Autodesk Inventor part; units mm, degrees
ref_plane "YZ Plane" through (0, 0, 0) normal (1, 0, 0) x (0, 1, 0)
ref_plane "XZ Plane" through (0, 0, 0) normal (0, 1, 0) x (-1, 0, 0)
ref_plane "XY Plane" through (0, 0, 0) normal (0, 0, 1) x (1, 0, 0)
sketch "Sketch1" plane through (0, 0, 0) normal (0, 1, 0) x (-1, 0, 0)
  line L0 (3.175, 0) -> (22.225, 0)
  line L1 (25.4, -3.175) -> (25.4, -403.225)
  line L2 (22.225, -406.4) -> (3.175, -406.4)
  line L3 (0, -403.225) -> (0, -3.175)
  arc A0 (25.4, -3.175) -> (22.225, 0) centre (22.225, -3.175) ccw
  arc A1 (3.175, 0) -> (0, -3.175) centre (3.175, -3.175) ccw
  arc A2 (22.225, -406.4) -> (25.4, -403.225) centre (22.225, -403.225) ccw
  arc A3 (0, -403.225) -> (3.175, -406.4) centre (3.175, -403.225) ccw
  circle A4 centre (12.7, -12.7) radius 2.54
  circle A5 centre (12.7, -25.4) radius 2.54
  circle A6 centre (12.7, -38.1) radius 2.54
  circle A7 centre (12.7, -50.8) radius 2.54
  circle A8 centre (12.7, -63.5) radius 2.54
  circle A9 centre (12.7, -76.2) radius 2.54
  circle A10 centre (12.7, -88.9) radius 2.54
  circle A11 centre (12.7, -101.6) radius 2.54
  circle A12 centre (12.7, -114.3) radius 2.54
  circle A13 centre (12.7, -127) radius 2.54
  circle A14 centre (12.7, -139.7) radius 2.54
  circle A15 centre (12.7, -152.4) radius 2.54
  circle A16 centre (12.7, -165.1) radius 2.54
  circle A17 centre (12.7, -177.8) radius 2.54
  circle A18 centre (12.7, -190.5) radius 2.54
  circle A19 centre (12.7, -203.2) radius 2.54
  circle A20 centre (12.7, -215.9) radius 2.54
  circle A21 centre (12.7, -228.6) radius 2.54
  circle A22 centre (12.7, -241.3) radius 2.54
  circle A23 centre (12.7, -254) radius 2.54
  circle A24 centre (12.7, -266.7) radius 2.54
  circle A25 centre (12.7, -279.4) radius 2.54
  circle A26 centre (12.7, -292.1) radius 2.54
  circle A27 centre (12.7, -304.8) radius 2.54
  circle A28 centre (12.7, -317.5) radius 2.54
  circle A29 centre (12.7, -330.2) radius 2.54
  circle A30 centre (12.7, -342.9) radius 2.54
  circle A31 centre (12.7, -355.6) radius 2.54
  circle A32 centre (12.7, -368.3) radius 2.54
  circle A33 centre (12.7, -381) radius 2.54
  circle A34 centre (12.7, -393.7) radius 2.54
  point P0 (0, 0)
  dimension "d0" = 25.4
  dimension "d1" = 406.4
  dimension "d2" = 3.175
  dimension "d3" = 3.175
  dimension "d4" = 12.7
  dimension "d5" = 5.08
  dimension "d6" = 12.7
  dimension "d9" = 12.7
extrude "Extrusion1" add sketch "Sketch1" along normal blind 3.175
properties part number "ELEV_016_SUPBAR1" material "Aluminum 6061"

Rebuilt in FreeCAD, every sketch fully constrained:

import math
import FreeCAD as App
import Part
import Sketcher
Q = App.Units.Quantity

doc = App.newDocument("Part")
body = doc.addObject("PartDesign::Body", "Body")

# Sketch on XZ plane
sketch1 = body.newObject("Sketcher::SketchObject", "Sketch")
sketch1.AttachmentSupport = (doc.getObject("XZ_Plane"), [""])
sketch1.MapMode = "FlatFace"
sketch1.addGeometry(Part.LineSegment(App.Vector(-22.2, 0, 0), App.Vector(-3.2, 0, 0)), False)
sketch1.addGeometry(Part.ArcOfCircle(Part.Circle(App.Vector(-3.2, -3.2, 0), App.Vector(0, 0, 1), 3.2), math.radians(0), math.radians(90)), False)
sketch1.addGeometry(Part.LineSegment(App.Vector(0, -3.2, 0), App.Vector(0, -403.2, 0)), False)
sketch1.addGeometry(Part.ArcOfCircle(Part.Circle(App.Vector(-3.2, -403.2, 0), App.Vector(0, 0, 1), 3.2), math.radians(-90), math.radians(0)), False)
sketch1.addGeometry(Part.LineSegment(App.Vector(-3.2, -406.4, 0), App.Vector(-22.2, -406.4, 0)), False)
sketch1.addGeometry(Part.ArcOfCircle(Part.Circle(App.Vector(-22.2, -403.2, 0), App.Vector(0, 0, 1), 3.2), math.radians(180), math.radians(270)), False)
sketch1.addGeometry(Part.LineSegment(App.Vector(-25.4, -403.2, 0), App.Vector(-25.4, -3.2, 0)), False)
sketch1.addGeometry(Part.ArcOfCircle(Part.Circle(App.Vector(-22.2, -3.2, 0), App.Vector(0, 0, 1), 3.2), math.radians(90), math.radians(180)), False)
sketch1.addGeometry(Part.Circle(App.Vector(-12.7, -393.7, 0), App.Vector(0, 0, 1), 2.5), False)
sketch1.addGeometry(Part.Circle(App.Vector(-12.7, -381, 0), App.Vector(0, 0, 1), 2.5), False)
sketch1.addGeometry(Part.Circle(App.Vector(-12.7, -368.3, 0), App.Vector(0, 0, 1), 2.5), False)
sketch1.addGeometry(Part.Circle(App.Vector(-12.7, -355.6, 0), App.Vector(0, 0, 1), 2.5), False)
sketch1.addGeometry(Part.Circle(App.Vector(-12.7, -342.9, 0), App.Vector(0, 0, 1), 2.5), False)
sketch1.addGeometry(Part.Circle(App.Vector(-12.7, -330.2, 0), App.Vector(0, 0, 1), 2.5), False)
sketch1.addGeometry(Part.Circle(App.Vector(-12.7, -317.5, 0), App.Vector(0, 0, 1), 2.5), False)
sketch1.addGeometry(Part.Circle(App.Vector(-12.7, -304.8, 0), App.Vector(0, 0, 1), 2.5), False)
sketch1.addGeometry(Part.Circle(App.Vector(-12.7, -292.1, 0), App.Vector(0, 0, 1), 2.5), False)
sketch1.addGeometry(Part.Circle(App.Vector(-12.7, -279.4, 0), App.Vector(0, 0, 1), 2.5), False)
sketch1.addGeometry(Part.Circle(App.Vector(-12.7, -266.7, 0), App.Vector(0, 0, 1), 2.5), False)
sketch1.addGeometry(Part.Circle(App.Vector(-12.7, -254, 0), App.Vector(0, 0, 1), 2.5), False)
sketch1.addGeometry(Part.Circle(App.Vector(-12.7, -241.3, 0), App.Vector(0, 0, 1), 2.5), False)
sketch1.addGeometry(Part.Circle(App.Vector(-12.7, -228.6, 0), App.Vector(0, 0, 1), 2.5), False)
sketch1.addGeometry(Part.Circle(App.Vector(-12.7, -215.9, 0), App.Vector(0, 0, 1), 2.5), False)
sketch1.addGeometry(Part.Circle(App.Vector(-12.7, -203.2, 0), App.Vector(0, 0, 1), 2.5), False)
sketch1.addGeometry(Part.Circle(App.Vector(-12.7, -190.5, 0), App.Vector(0, 0, 1), 2.5), False)
sketch1.addGeometry(Part.Circle(App.Vector(-12.7, -177.8, 0), App.Vector(0, 0, 1), 2.5), False)
sketch1.addGeometry(Part.Circle(App.Vector(-12.7, -165.1, 0), App.Vector(0, 0, 1), 2.5), False)
sketch1.addGeometry(Part.Circle(App.Vector(-12.7, -152.4, 0), App.Vector(0, 0, 1), 2.5), False)
sketch1.addGeometry(Part.Circle(App.Vector(-12.7, -139.7, 0), App.Vector(0, 0, 1), 2.5), False)
sketch1.addGeometry(Part.Circle(App.Vector(-12.7, -127, 0), App.Vector(0, 0, 1), 2.5), False)
sketch1.addGeometry(Part.Circle(App.Vector(-12.7, -114.3, 0), App.Vector(0, 0, 1), 2.5), False)
sketch1.addGeometry(Part.Circle(App.Vector(-12.7, -101.6, 0), App.Vector(0, 0, 1), 2.5), False)
sketch1.addGeometry(Part.Circle(App.Vector(-12.7, -88.9, 0), App.Vector(0, 0, 1), 2.5), False)
sketch1.addGeometry(Part.Circle(App.Vector(-12.7, -76.2, 0), App.Vector(0, 0, 1), 2.5), False)
sketch1.addGeometry(Part.Circle(App.Vector(-12.7, -63.5, 0), App.Vector(0, 0, 1), 2.5), False)
sketch1.addGeometry(Part.Circle(App.Vector(-12.7, -50.8, 0), App.Vector(0, 0, 1), 2.5), False)
sketch1.addGeometry(Part.Circle(App.Vector(-12.7, -38.1, 0), App.Vector(0, 0, 1), 2.5), False)
sketch1.addGeometry(Part.Circle(App.Vector(-12.7, -25.4, 0), App.Vector(0, 0, 1), 2.5), False)
sketch1.addGeometry(Part.Circle(App.Vector(-12.7, -12.7, 0), App.Vector(0, 0, 1), 2.5), False)
sketch1.addConstraint(Sketcher.Constraint("Tangent", 0, 2, 1, 2))
sketch1.addConstraint(Sketcher.Constraint("Tangent", 1, 1, 2, 1))
sketch1.addConstraint(Sketcher.Constraint("Tangent", 2, 2, 3, 2))
sketch1.addConstraint(Sketcher.Constraint("Tangent", 3, 1, 4, 1))
sketch1.addConstraint(Sketcher.Constraint("Tangent", 4, 2, 5, 2))
sketch1.addConstraint(Sketcher.Constraint("Tangent", 5, 1, 6, 1))
sketch1.addConstraint(Sketcher.Constraint("Tangent", 6, 2, 7, 2))
sketch1.addConstraint(Sketcher.Constraint("Tangent", 7, 1, 0, 1))
sketch1.addConstraint(Sketcher.Constraint("Horizontal", 0))
sketch1.addConstraint(Sketcher.Constraint("Vertical", 2))
sketch1.addConstraint(Sketcher.Constraint("Horizontal", 4))
sketch1.addConstraint(Sketcher.Constraint("Vertical", 6))
sketch1.addConstraint(Sketcher.Constraint("Equal", 1, 3))
sketch1.addConstraint(Sketcher.Constraint("Equal", 3, 5))
sketch1.addConstraint(Sketcher.Constraint("Equal", 5, 7))
sketch1.addConstraint(Sketcher.Constraint("Equal", 8, 9))
sketch1.addConstraint(Sketcher.Constraint("Equal", 9, 10))
sketch1.addConstraint(Sketcher.Constraint("Equal", 10, 11))
sketch1.addConstraint(Sketcher.Constraint("Equal", 11, 12))
sketch1.addConstraint(Sketcher.Constraint("Equal", 12, 13))
sketch1.addConstraint(Sketcher.Constraint("Equal", 13, 14))
sketch1.addConstraint(Sketcher.Constraint("Equal", 14, 15))
sketch1.addConstraint(Sketcher.Constraint("Equal", 15, 16))
sketch1.addConstraint(Sketcher.Constraint("Equal", 16, 17))
sketch1.addConstraint(Sketcher.Constraint("Equal", 17, 18))
sketch1.addConstraint(Sketcher.Constraint("Equal", 18, 19))
sketch1.addConstraint(Sketcher.Constraint("Equal", 19, 20))
sketch1.addConstraint(Sketcher.Constraint("Equal", 20, 21))
sketch1.addConstraint(Sketcher.Constraint("Equal", 21, 22))
sketch1.addConstraint(Sketcher.Constraint("Equal", 22, 23))
sketch1.addConstraint(Sketcher.Constraint("Equal", 23, 24))
sketch1.addConstraint(Sketcher.Constraint("Equal", 24, 25))
sketch1.addConstraint(Sketcher.Constraint("Equal", 25, 26))
sketch1.addConstraint(Sketcher.Constraint("Equal", 26, 27))
sketch1.addConstraint(Sketcher.Constraint("Equal", 27, 28))
sketch1.addConstraint(Sketcher.Constraint("Equal", 28, 29))
sketch1.addConstraint(Sketcher.Constraint("Equal", 29, 30))
sketch1.addConstraint(Sketcher.Constraint("Equal", 30, 31))
sketch1.addConstraint(Sketcher.Constraint("Equal", 31, 32))
sketch1.addConstraint(Sketcher.Constraint("Equal", 32, 33))
sketch1.addConstraint(Sketcher.Constraint("Equal", 33, 34))
sketch1.addConstraint(Sketcher.Constraint("Equal", 34, 35))
sketch1.addConstraint(Sketcher.Constraint("Equal", 35, 36))
sketch1.addConstraint(Sketcher.Constraint("Equal", 36, 37))
sketch1.addConstraint(Sketcher.Constraint("Equal", 37, 38))
sketch1.addConstraint(Sketcher.Constraint("PointOnObject", 0, 2, -1))
sketch1.addConstraint(Sketcher.Constraint("PointOnObject", 1, 1, -2))
sketch1.addConstraint(Sketcher.Constraint("Vertical", 8, 3, 9, 3))
sketch1.addConstraint(Sketcher.Constraint("Vertical", 9, 3, 10, 3))
sketch1.addConstraint(Sketcher.Constraint("Vertical", 10, 3, 11, 3))
sketch1.addConstraint(Sketcher.Constraint("Vertical", 11, 3, 12, 3))
sketch1.addConstraint(Sketcher.Constraint("Vertical", 12, 3, 13, 3))
sketch1.addConstraint(Sketcher.Constraint("Vertical", 13, 3, 14, 3))
sketch1.addConstraint(Sketcher.Constraint("Vertical", 14, 3, 15, 3))
sketch1.addConstraint(Sketcher.Constraint("Vertical", 15, 3, 16, 3))
sketch1.addConstraint(Sketcher.Constraint("Vertical", 16, 3, 17, 3))
sketch1.addConstraint(Sketcher.Constraint("Vertical", 17, 3, 18, 3))
sketch1.addConstraint(Sketcher.Constraint("Vertical", 18, 3, 19, 3))
sketch1.addConstraint(Sketcher.Constraint("Vertical", 19, 3, 20, 3))
sketch1.addConstraint(Sketcher.Constraint("Vertical", 20, 3, 21, 3))
sketch1.addConstraint(Sketcher.Constraint("Vertical", 21, 3, 22, 3))
sketch1.addConstraint(Sketcher.Constraint("Vertical", 22, 3, 23, 3))
sketch1.addConstraint(Sketcher.Constraint("Vertical", 23, 3, 24, 3))
sketch1.addConstraint(Sketcher.Constraint("Vertical", 24, 3, 25, 3))
sketch1.addConstraint(Sketcher.Constraint("Vertical", 25, 3, 26, 3))
sketch1.addConstraint(Sketcher.Constraint("Vertical", 26, 3, 27, 3))
sketch1.addConstraint(Sketcher.Constraint("Vertical", 27, 3, 28, 3))
sketch1.addConstraint(Sketcher.Constraint("Vertical", 28, 3, 29, 3))
sketch1.addConstraint(Sketcher.Constraint("Vertical", 29, 3, 30, 3))
sketch1.addConstraint(Sketcher.Constraint("Vertical", 30, 3, 31, 3))
sketch1.addConstraint(Sketcher.Constraint("Vertical", 31, 3, 32, 3))
sketch1.addConstraint(Sketcher.Constraint("Vertical", 32, 3, 33, 3))
sketch1.addConstraint(Sketcher.Constraint("Vertical", 33, 3, 34, 3))
sketch1.addConstraint(Sketcher.Constraint("Vertical", 34, 3, 35, 3))
sketch1.addConstraint(Sketcher.Constraint("Vertical", 35, 3, 36, 3))
sketch1.addConstraint(Sketcher.Constraint("Vertical", 36, 3, 37, 3))
sketch1.addConstraint(Sketcher.Constraint("Vertical", 37, 3, 38, 3))
sketch1.addConstraint(Sketcher.Constraint("Diameter", 8, Q("0.2 in")))
sketch1.addConstraint(Sketcher.Constraint("DistanceY", 37, 3, -1, 1, Q("1 in")))
sketch1.addConstraint(Sketcher.Constraint("DistanceY", 3, 1, -1, 1, Q("16 in")))
sketch1.addConstraint(Sketcher.Constraint("DistanceX", 5, 1, -1, 1, Q("1 in")))
sketch1.addConstraint(Sketcher.Constraint("Radius", 1, Q("0.125 in")))
sketch1.addConstraint(Sketcher.Constraint("DistanceY", 8, 3, 10, 3, Q("1 in")))
sketch1.addConstraint(Sketcher.Constraint("DistanceY", 9, 3, 11, 3, Q("1 in")))
sketch1.addConstraint(Sketcher.Constraint("DistanceY", 10, 3, 12, 3, Q("1 in")))
sketch1.addConstraint(Sketcher.Constraint("DistanceY", 11, 3, 13, 3, Q("1 in")))
sketch1.addConstraint(Sketcher.Constraint("DistanceY", 12, 3, 14, 3, Q("1 in")))
sketch1.addConstraint(Sketcher.Constraint("DistanceY", 13, 3, 15, 3, Q("1 in")))
sketch1.addConstraint(Sketcher.Constraint("DistanceY", 14, 3, 16, 3, Q("1 in")))
sketch1.addConstraint(Sketcher.Constraint("DistanceY", 15, 3, 17, 3, Q("1 in")))
sketch1.addConstraint(Sketcher.Constraint("DistanceY", 16, 3, 18, 3, Q("1 in")))
sketch1.addConstraint(Sketcher.Constraint("DistanceY", 17, 3, 19, 3, Q("1 in")))
sketch1.addConstraint(Sketcher.Constraint("DistanceY", 18, 3, 20, 3, Q("1 in")))
sketch1.addConstraint(Sketcher.Constraint("DistanceY", 19, 3, 21, 3, Q("1 in")))
sketch1.addConstraint(Sketcher.Constraint("DistanceY", 20, 3, 22, 3, Q("1 in")))
sketch1.addConstraint(Sketcher.Constraint("DistanceY", 21, 3, 23, 3, Q("1 in")))
sketch1.addConstraint(Sketcher.Constraint("DistanceY", 22, 3, 24, 3, Q("1 in")))
sketch1.addConstraint(Sketcher.Constraint("DistanceY", 23, 3, 25, 3, Q("1 in")))
sketch1.addConstraint(Sketcher.Constraint("DistanceY", 24, 3, 26, 3, Q("1 in")))
sketch1.addConstraint(Sketcher.Constraint("DistanceY", 25, 3, 27, 3, Q("1 in")))
sketch1.addConstraint(Sketcher.Constraint("DistanceY", 26, 3, 28, 3, Q("1 in")))
sketch1.addConstraint(Sketcher.Constraint("DistanceY", 27, 3, 29, 3, Q("1 in")))
sketch1.addConstraint(Sketcher.Constraint("DistanceY", 28, 3, 30, 3, Q("1 in")))
sketch1.addConstraint(Sketcher.Constraint("DistanceY", 29, 3, 31, 3, Q("1 in")))
sketch1.addConstraint(Sketcher.Constraint("DistanceY", 30, 3, 32, 3, Q("1 in")))
sketch1.addConstraint(Sketcher.Constraint("DistanceY", 31, 3, 33, 3, Q("1 in")))
sketch1.addConstraint(Sketcher.Constraint("DistanceY", 32, 3, 34, 3, Q("1 in")))
sketch1.addConstraint(Sketcher.Constraint("DistanceY", 33, 3, 35, 3, Q("1 in")))
sketch1.addConstraint(Sketcher.Constraint("DistanceY", 34, 3, 36, 3, Q("1 in")))
sketch1.addConstraint(Sketcher.Constraint("DistanceY", 35, 3, 37, 3, Q("1 in")))
sketch1.addConstraint(Sketcher.Constraint("DistanceY", 36, 3, 38, 3, Q("1 in")))
sketch1.addConstraint(Sketcher.Constraint("DistanceX", 8, 3, -1, 1, Q("0.5 in")))
sketch1.addConstraint(Sketcher.Constraint("DistanceY", 38, 3, -1, 1, Q("0.5 in")))
pad1 = body.newObject("PartDesign::Pad", "Pad")
pad1.Profile = sketch1
pad1.Length = Q("0.125 in")
pad1.Reversed = True

doc.recompute()
